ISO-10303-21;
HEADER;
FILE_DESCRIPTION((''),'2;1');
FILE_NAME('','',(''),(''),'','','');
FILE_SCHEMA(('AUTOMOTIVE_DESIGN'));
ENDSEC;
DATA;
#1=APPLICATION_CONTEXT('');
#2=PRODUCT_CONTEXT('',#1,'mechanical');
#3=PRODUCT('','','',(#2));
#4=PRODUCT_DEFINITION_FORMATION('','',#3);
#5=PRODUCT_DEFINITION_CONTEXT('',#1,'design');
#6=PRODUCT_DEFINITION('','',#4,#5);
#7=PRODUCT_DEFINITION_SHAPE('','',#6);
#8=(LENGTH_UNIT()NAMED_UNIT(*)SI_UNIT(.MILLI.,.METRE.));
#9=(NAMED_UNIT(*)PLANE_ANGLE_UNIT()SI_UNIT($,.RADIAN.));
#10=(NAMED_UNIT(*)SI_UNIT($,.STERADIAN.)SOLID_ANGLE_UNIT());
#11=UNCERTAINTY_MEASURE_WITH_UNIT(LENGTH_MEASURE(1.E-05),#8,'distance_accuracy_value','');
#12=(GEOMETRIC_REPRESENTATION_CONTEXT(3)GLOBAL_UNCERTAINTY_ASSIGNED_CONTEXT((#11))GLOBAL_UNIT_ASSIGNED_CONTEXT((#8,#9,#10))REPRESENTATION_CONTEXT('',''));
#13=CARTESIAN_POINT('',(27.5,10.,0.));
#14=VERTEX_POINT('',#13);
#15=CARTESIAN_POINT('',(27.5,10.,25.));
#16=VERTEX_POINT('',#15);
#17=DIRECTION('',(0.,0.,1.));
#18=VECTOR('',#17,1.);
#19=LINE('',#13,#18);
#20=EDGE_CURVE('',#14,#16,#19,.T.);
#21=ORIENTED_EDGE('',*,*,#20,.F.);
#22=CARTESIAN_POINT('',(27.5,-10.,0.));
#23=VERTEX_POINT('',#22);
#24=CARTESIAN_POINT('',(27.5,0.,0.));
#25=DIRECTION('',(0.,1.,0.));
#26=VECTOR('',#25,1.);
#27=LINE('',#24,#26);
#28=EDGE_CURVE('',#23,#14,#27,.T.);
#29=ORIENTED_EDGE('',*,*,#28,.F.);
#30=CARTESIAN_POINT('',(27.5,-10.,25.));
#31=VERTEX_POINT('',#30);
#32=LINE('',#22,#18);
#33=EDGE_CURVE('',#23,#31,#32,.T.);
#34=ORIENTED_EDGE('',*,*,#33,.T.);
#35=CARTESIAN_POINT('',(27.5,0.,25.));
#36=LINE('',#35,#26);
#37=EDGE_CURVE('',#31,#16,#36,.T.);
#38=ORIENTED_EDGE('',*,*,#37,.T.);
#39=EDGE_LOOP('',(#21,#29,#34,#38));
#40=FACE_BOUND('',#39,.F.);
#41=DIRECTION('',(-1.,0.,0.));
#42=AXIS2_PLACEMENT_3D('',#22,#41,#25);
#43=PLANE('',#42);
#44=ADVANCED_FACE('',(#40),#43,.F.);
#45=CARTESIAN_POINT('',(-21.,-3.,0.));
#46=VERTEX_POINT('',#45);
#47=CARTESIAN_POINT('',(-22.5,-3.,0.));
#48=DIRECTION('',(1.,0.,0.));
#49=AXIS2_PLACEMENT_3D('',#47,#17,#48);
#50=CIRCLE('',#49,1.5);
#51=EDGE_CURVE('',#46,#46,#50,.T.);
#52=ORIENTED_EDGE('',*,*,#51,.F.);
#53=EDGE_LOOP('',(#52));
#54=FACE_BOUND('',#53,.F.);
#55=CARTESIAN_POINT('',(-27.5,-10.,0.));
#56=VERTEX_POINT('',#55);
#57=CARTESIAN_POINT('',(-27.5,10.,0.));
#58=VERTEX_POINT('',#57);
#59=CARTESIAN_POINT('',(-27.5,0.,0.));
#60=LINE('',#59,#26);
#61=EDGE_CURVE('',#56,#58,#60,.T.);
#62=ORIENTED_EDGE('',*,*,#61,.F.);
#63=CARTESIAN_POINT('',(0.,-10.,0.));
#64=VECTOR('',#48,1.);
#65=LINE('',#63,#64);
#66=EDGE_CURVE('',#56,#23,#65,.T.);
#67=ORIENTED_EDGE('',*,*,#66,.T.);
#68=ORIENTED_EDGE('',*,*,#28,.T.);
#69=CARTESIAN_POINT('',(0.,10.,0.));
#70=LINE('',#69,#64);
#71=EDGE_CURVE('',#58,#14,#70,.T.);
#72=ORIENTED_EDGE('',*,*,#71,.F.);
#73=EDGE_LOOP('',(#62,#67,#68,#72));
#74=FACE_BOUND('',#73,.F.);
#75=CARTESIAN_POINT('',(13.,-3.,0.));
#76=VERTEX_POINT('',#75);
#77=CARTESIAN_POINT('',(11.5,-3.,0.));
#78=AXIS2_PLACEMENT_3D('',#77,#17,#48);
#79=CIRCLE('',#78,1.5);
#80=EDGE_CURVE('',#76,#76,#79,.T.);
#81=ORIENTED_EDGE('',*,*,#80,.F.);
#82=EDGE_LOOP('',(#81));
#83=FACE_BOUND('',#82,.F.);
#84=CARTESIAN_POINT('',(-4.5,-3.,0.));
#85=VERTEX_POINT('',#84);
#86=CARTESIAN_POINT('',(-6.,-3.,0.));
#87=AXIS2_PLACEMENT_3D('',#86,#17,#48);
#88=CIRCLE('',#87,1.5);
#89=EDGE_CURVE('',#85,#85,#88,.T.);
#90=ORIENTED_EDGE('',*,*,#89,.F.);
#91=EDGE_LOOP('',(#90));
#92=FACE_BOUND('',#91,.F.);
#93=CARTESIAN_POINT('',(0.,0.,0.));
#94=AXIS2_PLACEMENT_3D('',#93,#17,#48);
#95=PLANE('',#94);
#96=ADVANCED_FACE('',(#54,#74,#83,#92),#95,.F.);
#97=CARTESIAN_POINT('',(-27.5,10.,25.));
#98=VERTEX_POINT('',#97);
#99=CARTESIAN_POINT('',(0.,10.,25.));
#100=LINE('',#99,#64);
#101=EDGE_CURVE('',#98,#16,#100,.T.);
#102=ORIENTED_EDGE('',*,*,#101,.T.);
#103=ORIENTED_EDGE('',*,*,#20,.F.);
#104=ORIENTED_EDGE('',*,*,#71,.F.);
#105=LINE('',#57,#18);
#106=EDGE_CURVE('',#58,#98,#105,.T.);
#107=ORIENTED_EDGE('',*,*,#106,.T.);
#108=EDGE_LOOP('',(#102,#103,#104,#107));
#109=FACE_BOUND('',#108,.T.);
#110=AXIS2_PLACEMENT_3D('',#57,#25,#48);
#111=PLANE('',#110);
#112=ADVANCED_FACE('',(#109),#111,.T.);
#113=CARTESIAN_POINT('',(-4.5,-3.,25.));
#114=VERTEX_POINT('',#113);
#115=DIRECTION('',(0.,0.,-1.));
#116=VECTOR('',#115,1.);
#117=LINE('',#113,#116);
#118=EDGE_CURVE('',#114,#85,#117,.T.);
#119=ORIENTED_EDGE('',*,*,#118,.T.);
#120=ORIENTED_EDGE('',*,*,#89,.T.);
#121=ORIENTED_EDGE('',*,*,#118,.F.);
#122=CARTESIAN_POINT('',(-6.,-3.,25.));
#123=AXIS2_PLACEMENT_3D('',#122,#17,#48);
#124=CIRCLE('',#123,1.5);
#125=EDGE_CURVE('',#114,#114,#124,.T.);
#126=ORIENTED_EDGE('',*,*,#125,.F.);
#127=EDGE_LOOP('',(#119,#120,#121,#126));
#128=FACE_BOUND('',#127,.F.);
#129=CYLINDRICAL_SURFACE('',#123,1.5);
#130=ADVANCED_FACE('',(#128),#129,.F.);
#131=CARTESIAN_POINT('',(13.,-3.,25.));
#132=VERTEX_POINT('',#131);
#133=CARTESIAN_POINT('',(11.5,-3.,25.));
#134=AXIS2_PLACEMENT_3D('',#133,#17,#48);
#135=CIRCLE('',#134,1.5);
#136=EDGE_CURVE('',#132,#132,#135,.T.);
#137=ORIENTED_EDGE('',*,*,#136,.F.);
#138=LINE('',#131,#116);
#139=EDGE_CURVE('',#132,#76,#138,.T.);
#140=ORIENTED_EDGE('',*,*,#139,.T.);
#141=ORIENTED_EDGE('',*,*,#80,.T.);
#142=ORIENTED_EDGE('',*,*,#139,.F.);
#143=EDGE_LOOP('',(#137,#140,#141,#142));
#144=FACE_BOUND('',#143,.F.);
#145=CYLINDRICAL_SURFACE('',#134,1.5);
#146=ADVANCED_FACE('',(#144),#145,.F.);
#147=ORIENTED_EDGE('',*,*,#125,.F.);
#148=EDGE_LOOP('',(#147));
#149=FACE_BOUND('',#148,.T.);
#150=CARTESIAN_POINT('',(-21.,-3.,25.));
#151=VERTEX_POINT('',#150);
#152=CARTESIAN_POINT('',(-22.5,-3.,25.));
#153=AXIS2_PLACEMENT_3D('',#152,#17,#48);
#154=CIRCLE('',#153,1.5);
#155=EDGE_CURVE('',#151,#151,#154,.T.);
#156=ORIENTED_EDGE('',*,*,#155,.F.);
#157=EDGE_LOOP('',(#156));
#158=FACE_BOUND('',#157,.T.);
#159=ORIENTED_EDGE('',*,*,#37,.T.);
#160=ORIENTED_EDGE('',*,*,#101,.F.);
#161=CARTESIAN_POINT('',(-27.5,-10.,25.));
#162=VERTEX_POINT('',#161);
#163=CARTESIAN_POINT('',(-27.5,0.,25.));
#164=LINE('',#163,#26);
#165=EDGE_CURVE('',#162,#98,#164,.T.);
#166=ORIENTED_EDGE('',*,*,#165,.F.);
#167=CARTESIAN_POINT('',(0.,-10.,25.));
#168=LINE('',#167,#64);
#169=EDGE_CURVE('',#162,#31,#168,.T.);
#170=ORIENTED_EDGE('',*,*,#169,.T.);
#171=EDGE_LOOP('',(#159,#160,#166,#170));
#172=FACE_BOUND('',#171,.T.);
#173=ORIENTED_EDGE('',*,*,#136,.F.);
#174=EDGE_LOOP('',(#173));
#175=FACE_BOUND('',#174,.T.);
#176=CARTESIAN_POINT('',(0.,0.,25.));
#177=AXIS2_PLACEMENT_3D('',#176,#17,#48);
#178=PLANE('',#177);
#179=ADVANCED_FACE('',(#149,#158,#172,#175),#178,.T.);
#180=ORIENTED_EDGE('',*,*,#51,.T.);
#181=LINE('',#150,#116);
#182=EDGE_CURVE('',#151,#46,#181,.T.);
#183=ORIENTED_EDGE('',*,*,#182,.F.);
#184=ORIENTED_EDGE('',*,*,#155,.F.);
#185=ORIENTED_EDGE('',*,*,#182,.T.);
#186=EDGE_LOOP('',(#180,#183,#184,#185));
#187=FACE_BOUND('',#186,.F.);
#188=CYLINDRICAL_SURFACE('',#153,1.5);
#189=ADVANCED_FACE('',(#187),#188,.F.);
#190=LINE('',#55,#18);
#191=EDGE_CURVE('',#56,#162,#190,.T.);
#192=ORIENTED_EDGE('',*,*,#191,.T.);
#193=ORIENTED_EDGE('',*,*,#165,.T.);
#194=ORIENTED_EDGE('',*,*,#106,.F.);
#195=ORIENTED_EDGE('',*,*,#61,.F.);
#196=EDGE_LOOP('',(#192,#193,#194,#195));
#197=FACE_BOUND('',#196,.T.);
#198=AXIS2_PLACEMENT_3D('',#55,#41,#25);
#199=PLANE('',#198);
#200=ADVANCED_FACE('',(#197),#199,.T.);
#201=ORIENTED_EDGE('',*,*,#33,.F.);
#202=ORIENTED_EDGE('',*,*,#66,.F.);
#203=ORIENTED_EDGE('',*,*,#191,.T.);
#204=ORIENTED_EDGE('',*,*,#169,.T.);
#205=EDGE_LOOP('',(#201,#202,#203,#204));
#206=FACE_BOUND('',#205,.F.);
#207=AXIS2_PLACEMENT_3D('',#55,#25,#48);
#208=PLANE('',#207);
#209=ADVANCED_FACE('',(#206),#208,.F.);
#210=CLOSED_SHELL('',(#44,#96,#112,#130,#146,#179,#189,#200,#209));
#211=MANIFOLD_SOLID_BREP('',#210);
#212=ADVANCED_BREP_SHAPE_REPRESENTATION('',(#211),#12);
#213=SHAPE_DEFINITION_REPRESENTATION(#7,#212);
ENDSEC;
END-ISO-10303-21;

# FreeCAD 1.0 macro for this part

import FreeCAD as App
import Part
import Sketcher
Q = App.Units.Quantity


def add_polygon(sketch, points):
    """Adds a closed chain of lines whose ends are joined by coincident constraints."""
    first, n = sketch.GeometryCount, len(points)
    for a, b in zip(points, points[1:] + points[:1]):
        sketch.addGeometry(Part.LineSegment(App.Vector(*a, 0), App.Vector(*b, 0)), False)
    for i in range(n):
        sketch.addConstraint(Sketcher.Constraint("Coincident", first + i, 2, first + (i + 1) % n, 1))

doc = App.newDocument("Part")
body = doc.addObject("PartDesign::Body", "Body")

sketch1 = body.newObject("Sketcher::SketchObject", "Sketch")
sketch1.AttachmentSupport = (doc.getObject("XY_Plane"), [""])
sketch1.MapMode = "FlatFace"
add_polygon(sketch1, [(-27.5, 10), (-27.5, -10), (27.5, -10), (27.5, 10)])
sketch1.addConstraint([
    Sketcher.Constraint("Vertical", 0),
    Sketcher.Constraint("Horizontal", 1),
    Sketcher.Constraint("Vertical", 2),
    Sketcher.Constraint("Horizontal", 3),
    Sketcher.Constraint("Symmetric", 0, 2, 2, 2, -1, 1),
    Sketcher.Constraint("DistanceX", 1, 1, 1, 2, Q("55 mm")),
    Sketcher.Constraint("DistanceY", 0, 2, 0, 1, Q("20 mm")),
])
pad1 = body.newObject("PartDesign::Pad", "Pad")
pad1.Profile = sketch1
pad1.Length = 25

sketch2 = body.newObject("Sketcher::SketchObject", "Sketch001")
sketch2.AttachmentSupport = (doc.getObject("XY_Plane"), [""])
sketch2.MapMode = "FlatFace"
sketch2.AttachmentOffset = App.Placement(App.Vector(0, 0, 25), App.Rotation())
sketch2.addGeometry(Part.Circle(App.Vector(-22.5, -3, 0), App.Vector(0, 0, 1), 1.5), False)
sketch2.addConstraint([
    Sketcher.Constraint("Diameter", 0, Q("3 mm")),
    Sketcher.Constraint("DistanceY", 0, 3, -1, 1, Q("3 mm")),
    Sketcher.Constraint("DistanceX", 0, 3, -1, 1, Q("22.5 mm")),
])
pocket1 = body.newObject("PartDesign::Pocket", "Pocket")
pocket1.Profile = sketch2
pocket1.Type = "ThroughAll"

sketch3 = body.newObject("Sketcher::SketchObject", "Sketch002")
sketch3.AttachmentSupport = (doc.getObject("XY_Plane"), [""])
sketch3.MapMode = "FlatFace"
sketch3.AttachmentOffset = App.Placement(App.Vector(0, 0, 25), App.Rotation())
sketch3.addGeometry(Part.Circle(App.Vector(-6, -3, 0), App.Vector(0, 0, 1), 1.5), False)
sketch3.addConstraint([
    Sketcher.Constraint("Diameter", 0, Q("3 mm")),
    Sketcher.Constraint("DistanceX", 0, 3, -1, 1, Q("6 mm")),
    Sketcher.Constraint("DistanceY", 0, 3, -1, 1, Q("3 mm")),
])
pocket2 = body.newObject("PartDesign::Pocket", "Pocket001")
pocket2.Profile = sketch3
pocket2.Type = "ThroughAll"

sketch4 = body.newObject("Sketcher::SketchObject", "Sketch003")
sketch4.AttachmentSupport = (doc.getObject("XY_Plane"), [""])
sketch4.MapMode = "FlatFace"
sketch4.AttachmentOffset = App.Placement(App.Vector(0, 0, 25), App.Rotation())
sketch4.addGeometry(Part.Circle(App.Vector(11.5, -3, 0), App.Vector(0, 0, 1), 1.5), False)
sketch4.addConstraint([
    Sketcher.Constraint("Diameter", 0, Q("3 mm")),
    Sketcher.Constraint("DistanceY", 0, 3, -1, 1, Q("3 mm")),
    Sketcher.Constraint("DistanceX", -1, 1, 0, 3, Q("11.5 mm")),
])
pocket3 = body.newObject("PartDesign::Pocket", "Pocket002")
pocket3.Profile = sketch4
pocket3.Type = "ThroughAll"

doc.recompute()
